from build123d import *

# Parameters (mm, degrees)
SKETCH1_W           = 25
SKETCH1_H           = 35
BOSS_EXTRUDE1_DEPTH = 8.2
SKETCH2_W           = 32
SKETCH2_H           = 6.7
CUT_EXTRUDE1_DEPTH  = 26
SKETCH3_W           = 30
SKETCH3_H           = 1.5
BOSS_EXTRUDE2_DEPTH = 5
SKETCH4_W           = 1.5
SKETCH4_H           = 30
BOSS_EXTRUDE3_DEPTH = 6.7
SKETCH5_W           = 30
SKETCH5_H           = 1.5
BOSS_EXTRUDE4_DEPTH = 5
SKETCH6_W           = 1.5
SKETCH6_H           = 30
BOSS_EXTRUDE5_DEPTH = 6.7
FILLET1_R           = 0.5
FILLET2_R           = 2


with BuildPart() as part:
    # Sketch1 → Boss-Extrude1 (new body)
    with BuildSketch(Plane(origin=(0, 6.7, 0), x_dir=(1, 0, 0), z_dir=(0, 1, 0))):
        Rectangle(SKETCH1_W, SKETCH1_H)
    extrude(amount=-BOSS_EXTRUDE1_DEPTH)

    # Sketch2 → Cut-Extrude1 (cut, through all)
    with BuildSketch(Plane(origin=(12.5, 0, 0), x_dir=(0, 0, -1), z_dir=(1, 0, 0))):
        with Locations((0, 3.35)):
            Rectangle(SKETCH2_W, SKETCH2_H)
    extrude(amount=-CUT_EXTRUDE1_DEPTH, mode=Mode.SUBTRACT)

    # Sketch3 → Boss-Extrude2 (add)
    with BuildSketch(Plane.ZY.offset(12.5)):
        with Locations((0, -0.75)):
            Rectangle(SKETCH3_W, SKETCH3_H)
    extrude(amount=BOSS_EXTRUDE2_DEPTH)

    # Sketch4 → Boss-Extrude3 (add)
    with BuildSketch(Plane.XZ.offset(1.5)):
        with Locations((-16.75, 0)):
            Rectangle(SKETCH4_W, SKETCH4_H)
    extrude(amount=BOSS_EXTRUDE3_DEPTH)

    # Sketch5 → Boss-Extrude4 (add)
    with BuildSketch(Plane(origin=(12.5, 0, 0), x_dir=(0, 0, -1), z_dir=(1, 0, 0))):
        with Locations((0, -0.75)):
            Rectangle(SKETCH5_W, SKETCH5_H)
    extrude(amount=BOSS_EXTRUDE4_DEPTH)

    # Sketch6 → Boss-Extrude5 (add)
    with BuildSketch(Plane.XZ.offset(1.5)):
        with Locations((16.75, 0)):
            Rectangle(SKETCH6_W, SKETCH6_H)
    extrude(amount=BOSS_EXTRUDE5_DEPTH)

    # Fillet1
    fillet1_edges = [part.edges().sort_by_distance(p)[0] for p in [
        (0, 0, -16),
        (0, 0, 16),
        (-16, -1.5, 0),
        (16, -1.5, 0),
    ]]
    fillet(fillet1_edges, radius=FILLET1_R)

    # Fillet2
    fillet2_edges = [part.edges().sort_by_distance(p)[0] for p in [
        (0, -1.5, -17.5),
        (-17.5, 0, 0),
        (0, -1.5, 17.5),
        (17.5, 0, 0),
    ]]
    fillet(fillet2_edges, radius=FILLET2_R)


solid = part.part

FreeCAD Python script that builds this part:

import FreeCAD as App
import Part
import Sketcher

V = App.Vector
Q = App.Units.Quantity


def edges_at(feature, points):
    """Names of the edges that pass closest to the given points."""
    edges = feature.Shape.Edges
    near = lambda p: min(range(len(edges)), key=lambda i: edges[i].distToShape(Part.Vertex(*p))[0])
    return sorted({f"Edge{near(p) + 1}" for p in points})


def add_polygon(sketch, points):
    """Adds a closed chain of lines whose ends are joined by coincident constraints."""
    first, n = sketch.GeometryCount, len(points)
    for a, b in zip(points, points[1:] + points[:1]):
        sketch.addGeometry(Part.LineSegment(App.Vector(*a, 0), App.Vector(*b, 0)), False)
    for i in range(n):
        sketch.addConstraint(Sketcher.Constraint("Coincident", first + i, 2, first + (i + 1) % n, 1))

doc = App.newDocument("Part")
params = doc.addObject("Spreadsheet::Sheet", "Params")
for row, (alias, value) in enumerate([
    ("sketch1_width", "25 mm"),
    ("sketch1_height", "35 mm"),
    ("pad1_length", "8.2 mm"),
    ("sketch2_height", "32 mm"),
    ("sketch2_width", "6.7 mm"),
    ("sketch3_height", "30 mm"),
    ("sketch3_width", "1.5 mm"),
    ("pad2_length", "5 mm"),
    ("sketch4_height", "30 mm"),
    ("sketch4_width", "1.5 mm"),
    ("pad3_length", "6.7 mm"),
    ("sketch5_height", "30 mm"),
    ("sketch5_width", "1.5 mm"),
    ("pad4_length", "5 mm"),
    ("sketch6_height", "30 mm"),
    ("sketch6_width", "1.5 mm"),
    ("pad5_length", "6.7 mm"),
    ("fillet_radius", "0.5 mm"),
    ("fillet2_radius", "2 mm"),
], start=1):
    params.set(f"A{row}", alias)
    params.set(f"B{row}", "=" + value)
    params.setAlias(f"B{row}", alias)

body = doc.addObject("PartDesign::Body", "Body")

# Sketch on XZ plane
sketch1 = body.newObject("Sketcher::SketchObject", "Sketch")
sketch1.AttachmentSupport = (doc.getObject("XZ_Plane"), [""])
sketch1.MapMode = "FlatFace"
sketch1.AttachmentOffset = App.Placement(V(0, 0, -6.7), App.Rotation())
add_polygon(sketch1, [(-12, -18), (-12, 18), (12, 18), (12, -18)])  # lines 0-3
sketch1.addConstraint([
    Sketcher.Constraint("Vertical", 0),
    Sketcher.Constraint("Horizontal", 1),
    Sketcher.Constraint("Vertical", 2),
    Sketcher.Constraint("Horizontal", 3),
    Sketcher.Constraint("Symmetric", 0, 2, 2, 2, -1, 1),
    Sketcher.Constraint("DistanceX", 1, 1, 1, 2, Q("25 mm")),
    Sketcher.Constraint("DistanceY", 0, 1, 0, 2, Q("35 mm")),
])
sketch1.setExpression("Constraints[9]", "Params.sketch1_width")
sketch1.setExpression("Constraints[10]", "Params.sketch1_height")
pad1 = body.newObject("PartDesign::Pad", "Pad")
pad1.Profile = sketch1
pad1.setExpression("Length", "Params.pad1_length")

# Sketch on YZ plane
sketch2 = body.newObject("Sketcher::SketchObject", "Sketch001")
sketch2.AttachmentSupport = (doc.getObject("YZ_Plane"), [""])
sketch2.MapMode = "FlatFace"
sketch2.AttachmentOffset = App.Placement(V(0, 0, 12.5), App.Rotation())
add_polygon(sketch2, [(7, 16), (0, 16), (0, -16), (7, -16)])  # lines 0-3
sketch2.addConstraint([
    Sketcher.Constraint("Horizontal", 0),
    Sketcher.Constraint("Vertical", 1),
    Sketcher.Constraint("Horizontal", 2),
    Sketcher.Constraint("Vertical", 3),
    Sketcher.Constraint("Symmetric", 0, 2, 1, 2, -1, 1),
    Sketcher.Constraint("DistanceY", 1, 2, 1, 1, Q("32 mm")),
    Sketcher.Constraint("DistanceX", 0, 2, 0, 1, Q("6.7 mm")),
])
sketch2.setExpression("Constraints[9]", "Params.sketch2_height")
sketch2.setExpression("Constraints[10]", "Params.sketch2_width")
pocket1 = body.newObject("PartDesign::Pocket", "Pocket")
pocket1.Profile = sketch2
pocket1.Type = "ThroughAll"

# Sketch on YZ plane
sketch3 = body.newObject("Sketcher::SketchObject", "Sketch002")
sketch3.AttachmentSupport = (doc.getObject("YZ_Plane"), [""])
sketch3.MapMode = "FlatFace"
sketch3.AttachmentOffset = App.Placement(V(0, 0, -12.5), App.Rotation())
add_polygon(sketch3, [(0, -15), (-1.5, -15), (-1.5, 15), (0, 15)])  # lines 0-3
sketch3.addConstraint([
    Sketcher.Constraint("Horizontal", 0),
    Sketcher.Constraint("Vertical", 1),
    Sketcher.Constraint("Horizontal", 2),
    Sketcher.Constraint("Vertical", 3),
    Sketcher.Constraint("Symmetric", 2, 2, 3, 2, -1, 1),
    Sketcher.Constraint("DistanceY", 1, 1, 1, 2, Q("30 mm")),
    Sketcher.Constraint("DistanceX", 0, 2, 0, 1, Q("1.5 mm")),
])
sketch3.setExpression("Constraints[9]", "Params.sketch3_height")
sketch3.setExpression("Constraints[10]", "Params.sketch3_width")
pad2 = body.newObject("PartDesign::Pad", "Pad001")
pad2.Profile = sketch3
pad2.setExpression("Length", "Params.pad2_length")
pad2.Reversed = True

# Sketch on XZ plane
sketch4 = body.newObject("Sketcher::SketchObject", "Sketch003")
sketch4.AttachmentSupport = (doc.getObject("XZ_Plane"), [""])
sketch4.MapMode = "FlatFace"
sketch4.AttachmentOffset = App.Placement(V(0, 0, 1.5), App.Rotation())
add_polygon(sketch4, [(-17.5, 15), (-17.5, -15), (-16, -15), (-16, 15)])  # lines 0-3
sketch4.addConstraint([
    Sketcher.Constraint("Vertical", 0),
    Sketcher.Constraint("Horizontal", 1),
    Sketcher.Constraint("Vertical", 2),
    Sketcher.Constraint("Horizontal", 3),
    Sketcher.Constraint("DistanceY", 0, 2, 0, 1, Q("30 mm")),
    Sketcher.Constraint("DistanceX", 1, 1, 1, 2, Q("1.5 mm")),
    Sketcher.Constraint("DistanceY", 0, 2, -1, 1, Q("15 mm")),
    Sketcher.Constraint("DistanceX", 1, 2, -1, 1, Q("16 mm")),
])
sketch4.setExpression("Constraints[8]", "Params.sketch4_height")
sketch4.setExpression("Constraints[9]", "Params.sketch4_width")
pad3 = body.newObject("PartDesign::Pad", "Pad002")
pad3.Profile = sketch4
pad3.setExpression("Length", "Params.pad3_length")

# Sketch on YZ plane
sketch5 = body.newObject("Sketcher::SketchObject", "Sketch004")
sketch5.AttachmentSupport = (doc.getObject("YZ_Plane"), [""])
sketch5.MapMode = "FlatFace"
sketch5.AttachmentOffset = App.Placement(V(0, 0, 12.5), App.Rotation())
add_polygon(sketch5, [(0, 15), (-1.5, 15), (-1.5, -15), (0, -15)])  # lines 0-3
sketch5.addConstraint([
    Sketcher.Constraint("Horizontal", 0),
    Sketcher.Constraint("Vertical", 1),
    Sketcher.Constraint("Horizontal", 2),
    Sketcher.Constraint("Vertical", 3),
    Sketcher.Constraint("Symmetric", 2, 2, 3, 2, -1, 1),
    Sketcher.Constraint("DistanceY", 1, 2, 1, 1, Q("30 mm")),
    Sketcher.Constraint("DistanceX", 0, 2, 0, 1, Q("1.5 mm")),
])
sketch5.setExpression("Constraints[9]", "Params.sketch5_height")
sketch5.setExpression("Constraints[10]", "Params.sketch5_width")
pad4 = body.newObject("PartDesign::Pad", "Pad003")
pad4.Profile = sketch5
pad4.setExpression("Length", "Params.pad4_length")

# Sketch on XZ plane
sketch6 = body.newObject("Sketcher::SketchObject", "Sketch005")
sketch6.AttachmentSupport = (doc.getObject("XZ_Plane"), [""])
sketch6.MapMode = "FlatFace"
sketch6.AttachmentOffset = App.Placement(V(0, 0, 1.5), App.Rotation())
add_polygon(sketch6, [(16, 15), (16, -15), (17.5, -15), (17.5, 15)])  # lines 0-3
sketch6.addConstraint([
    Sketcher.Constraint("Vertical", 0),
    Sketcher.Constraint("Horizontal", 1),
    Sketcher.Constraint("Vertical", 2),
    Sketcher.Constraint("Horizontal", 3),
    Sketcher.Constraint("DistanceY", 0, 2, 0, 1, Q("30 mm")),
    Sketcher.Constraint("DistanceX", 1, 1, 1, 2, Q("1.5 mm")),
    Sketcher.Constraint("DistanceX", -1, 1, 0, 2, Q("16 mm")),
    Sketcher.Constraint("DistanceY", 0, 2, -1, 1, Q("15 mm")),
])
sketch6.setExpression("Constraints[8]", "Params.sketch6_height")
sketch6.setExpression("Constraints[9]", "Params.sketch6_width")
pad5 = body.newObject("PartDesign::Pad", "Pad004")
pad5.Profile = sketch6
pad5.setExpression("Length", "Params.pad5_length")
doc.recompute()

fillet = body.newObject("PartDesign::Fillet", "Fillet")
fillet.Base = (pad5, edges_at(pad5, [
    (0, 0, -16),
    (0, 0, 16),
    (-16, -1.5, 0),
    (16, -1.5, 0),
]))
fillet.setExpression("Radius", "Params.fillet_radius")
doc.recompute()

fillet2 = body.newObject("PartDesign::Fillet", "Fillet001")
fillet2.Base = (fillet, edges_at(fillet, [
    (0, -1.5, -17.5),
    (-17.5, 0, 0),
    (0, -1.5, 17.5),
    (17.5, 0, 0),
]))
fillet2.setExpression("Radius", "Params.fillet2_radius")

doc.recompute()
